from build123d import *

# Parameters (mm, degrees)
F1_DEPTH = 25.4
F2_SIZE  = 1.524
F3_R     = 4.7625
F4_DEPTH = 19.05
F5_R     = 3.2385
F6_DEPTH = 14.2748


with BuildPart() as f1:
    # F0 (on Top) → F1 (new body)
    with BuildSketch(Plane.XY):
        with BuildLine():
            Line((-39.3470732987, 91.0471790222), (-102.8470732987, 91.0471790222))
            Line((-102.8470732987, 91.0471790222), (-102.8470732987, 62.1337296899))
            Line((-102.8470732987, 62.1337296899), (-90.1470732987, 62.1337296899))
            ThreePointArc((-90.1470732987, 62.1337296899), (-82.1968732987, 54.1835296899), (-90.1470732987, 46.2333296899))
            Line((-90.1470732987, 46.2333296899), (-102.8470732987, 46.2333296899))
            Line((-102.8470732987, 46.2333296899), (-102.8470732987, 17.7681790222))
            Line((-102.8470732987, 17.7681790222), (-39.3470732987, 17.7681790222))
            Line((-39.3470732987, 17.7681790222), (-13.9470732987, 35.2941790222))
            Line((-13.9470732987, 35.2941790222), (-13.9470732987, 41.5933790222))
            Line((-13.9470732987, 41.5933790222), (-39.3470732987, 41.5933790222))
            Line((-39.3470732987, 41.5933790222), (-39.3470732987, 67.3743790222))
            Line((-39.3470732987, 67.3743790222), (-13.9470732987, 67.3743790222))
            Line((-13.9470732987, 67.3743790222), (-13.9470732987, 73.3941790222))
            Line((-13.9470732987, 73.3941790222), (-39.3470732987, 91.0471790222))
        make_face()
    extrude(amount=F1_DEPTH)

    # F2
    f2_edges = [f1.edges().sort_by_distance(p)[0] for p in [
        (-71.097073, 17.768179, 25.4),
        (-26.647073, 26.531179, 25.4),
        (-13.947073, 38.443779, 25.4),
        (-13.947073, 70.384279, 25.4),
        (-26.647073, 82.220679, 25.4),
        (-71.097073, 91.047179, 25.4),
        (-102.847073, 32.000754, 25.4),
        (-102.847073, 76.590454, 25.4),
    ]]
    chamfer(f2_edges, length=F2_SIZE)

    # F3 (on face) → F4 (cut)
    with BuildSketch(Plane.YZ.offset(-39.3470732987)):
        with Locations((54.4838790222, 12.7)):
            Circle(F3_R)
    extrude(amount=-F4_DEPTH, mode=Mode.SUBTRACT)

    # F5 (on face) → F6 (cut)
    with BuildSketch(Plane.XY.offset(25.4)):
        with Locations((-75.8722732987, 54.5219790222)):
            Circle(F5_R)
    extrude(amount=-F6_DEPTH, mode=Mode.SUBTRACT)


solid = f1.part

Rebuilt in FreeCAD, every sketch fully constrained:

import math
import FreeCAD as App
import Part
import Sketcher

V = App.Vector
Q = App.Units.Quantity


def edges_at(feature, points):
    """Names of the edges that pass closest to the given points."""
    edges = feature.Shape.Edges
    near = lambda p: min(range(len(edges)), key=lambda i: edges[i].distToShape(Part.Vertex(*p))[0])
    return sorted({f"Edge{near(p) + 1}" for p in points})

doc = App.newDocument("Part")
body = doc.addObject("PartDesign::Body", "Body")

sketch1 = body.newObject("Sketcher::SketchObject", "Sketch")
sketch1.AttachmentSupport = (doc.getObject("XY_Plane"), [""])
sketch1.MapMode = "FlatFace"
sketch1.addGeometry(Part.LineSegment(V(-39.347073, 91.047179, 0), V(-102.847073, 91.047179, 0)), False)
sketch1.addGeometry(Part.LineSegment(V(-102.847073, 91.047179, 0), V(-102.847073, 62.13373, 0)), False)
sketch1.addGeometry(Part.LineSegment(V(-102.847073, 62.13373, 0), V(-90.147073, 62.13373, 0)), False)
sketch1.addGeometry(Part.ArcOfCircle(Part.Circle(V(-90.147073, 54.18353, 0), V(0, 0, 1), 7.9502), math.radians(-90), math.radians(90)), False)
sketch1.addGeometry(Part.LineSegment(V(-90.147073, 46.23333, 0), V(-102.847073, 46.23333, 0)), False)
sketch1.addGeometry(Part.LineSegment(V(-102.847073, 46.23333, 0), V(-102.847073, 17.768179, 0)), False)
sketch1.addGeometry(Part.LineSegment(V(-102.847073, 17.768179, 0), V(-39.347073, 17.768179, 0)), False)
sketch1.addGeometry(Part.LineSegment(V(-39.347073, 17.768179, 0), V(-13.947073, 35.294179, 0)), False)
sketch1.addGeometry(Part.LineSegment(V(-13.947073, 35.294179, 0), V(-13.947073, 41.593379, 0)), False)
sketch1.addGeometry(Part.LineSegment(V(-13.947073, 41.593379, 0), V(-39.347073, 41.593379, 0)), False)
sketch1.addGeometry(Part.LineSegment(V(-39.347073, 41.593379, 0), V(-39.347073, 67.374379, 0)), False)
sketch1.addGeometry(Part.LineSegment(V(-39.347073, 67.374379, 0), V(-13.947073, 67.374379, 0)), False)
sketch1.addGeometry(Part.LineSegment(V(-13.947073, 67.374379, 0), V(-13.947073, 73.394179, 0)), False)
sketch1.addGeometry(Part.LineSegment(V(-13.947073, 73.394179, 0), V(-39.347073, 91.047179, 0)), False)
sketch1.addConstraint(Sketcher.Constraint("Coincident", 0, 2, 1, 1))
sketch1.addConstraint(Sketcher.Constraint("Coincident", 1, 2, 2, 1))
sketch1.addConstraint(Sketcher.Constraint("Tangent", 2, 2, 3, 2))
sketch1.addConstraint(Sketcher.Constraint("Tangent", 3, 1, 4, 1))
sketch1.addConstraint(Sketcher.Constraint("Coincident", 4, 2, 5, 1))
sketch1.addConstraint(Sketcher.Constraint("Coincident", 5, 2, 6, 1))
sketch1.addConstraint(Sketcher.Constraint("Coincident", 6, 2, 7, 1))
sketch1.addConstraint(Sketcher.Constraint("Coincident", 7, 2, 8, 1))
sketch1.addConstraint(Sketcher.Constraint("Coincident", 8, 2, 9, 1))
sketch1.addConstraint(Sketcher.Constraint("Coincident", 9, 2, 10, 1))
sketch1.addConstraint(Sketcher.Constraint("Coincident", 10, 2, 11, 1))
sketch1.addConstraint(Sketcher.Constraint("Coincident", 11, 2, 12, 1))
sketch1.addConstraint(Sketcher.Constraint("Coincident", 12, 2, 13, 1))
sketch1.addConstraint(Sketcher.Constraint("Coincident", 13, 2, 0, 1))
sketch1.addConstraint(Sketcher.Constraint("Horizontal", 0))
sketch1.addConstraint(Sketcher.Constraint("Vertical", 1))
sketch1.addConstraint(Sketcher.Constraint("Horizontal", 2))
sketch1.addConstraint(Sketcher.Constraint("Horizontal", 4))
sketch1.addConstraint(Sketcher.Constraint("Vertical", 5))
sketch1.addConstraint(Sketcher.Constraint("Horizontal", 6))
sketch1.addConstraint(Sketcher.Constraint("Vertical", 8))
sketch1.addConstraint(Sketcher.Constraint("Horizontal", 9))
sketch1.addConstraint(Sketcher.Constraint("Vertical", 10))
sketch1.addConstraint(Sketcher.Constraint("Horizontal", 11))
sketch1.addConstraint(Sketcher.Constraint("Vertical", 12))
sketch1.addConstraint(Sketcher.Constraint("Vertical", 1, 2, 4, 2))
sketch1.addConstraint(Sketcher.Constraint("Vertical", 6, 2, 9, 2))
sketch1.addConstraint(Sketcher.Constraint("Vertical", 8, 2, 11, 2))
sketch1.addConstraint(Sketcher.Constraint("Vertical", 10, 2, 13, 2))
sketch1.addConstraint(Sketcher.Constraint("DistanceX", 9, 2, 9, 1, Q("1 in")))
sketch1.addConstraint(Sketcher.Constraint("DistanceX", 0, 2, 0, 1, Q("2.5 in")))
sketch1.addConstraint(Sketcher.Constraint("DistanceX", 2, 1, 2, 2, Q("0.5 in")))
sketch1.addConstraint(Sketcher.Constraint("Radius", 3, Q("0.313 in")))
sketch1.addConstraint(Sketcher.Constraint("DistanceY", 7, 2, 12, 2, Q("1.5 in")))
sketch1.addConstraint(Sketcher.Constraint("DistanceY", 8, 1, 8, 2, Q("0.248 in")))
sketch1.addConstraint(Sketcher.Constraint("DistanceY", 10, 1, 10, 2, Q("1.015 in")))
sketch1.addConstraint(Sketcher.Constraint("DistanceY", 6, 2, 7, 2, Q("0.69 in")))
sketch1.addConstraint(Sketcher.Constraint("DistanceY", 10, 2, 13, 2, Q("0.932 in")))
sketch1.addConstraint(Sketcher.Constraint("DistanceY", 1, 2, 1, 1, 28.913449))
sketch1.addConstraint(Sketcher.Constraint("DistanceY", -1, 1, 3, 3, 54.18353))
sketch1.addConstraint(Sketcher.Constraint("DistanceX", 3, 3, -1, 1, 90.147073))
pad1 = body.newObject("PartDesign::Pad", "Pad")
pad1.Profile = sketch1
pad1.Length = Q("1 in")
doc.recompute()

chamfer = body.newObject("PartDesign::Chamfer", "Chamfer")
chamfer.Base = (pad1, edges_at(pad1, [
    (-71.097, 17.768, 25.4),
    (-26.647, 26.531, 25.4),
    (-13.947, 38.444, 25.4),
    (-13.947, 70.384, 25.4),
    (-26.647, 82.221, 25.4),
    (-71.097, 91.047, 25.4),
    (-102.847, 32.001, 25.4),
    (-102.847, 76.59, 25.4),
]))
chamfer.Size = Q("0.06 in")

sketch2 = body.newObject("Sketcher::SketchObject", "Sketch001")
sketch2.AttachmentSupport = (doc.getObject("YZ_Plane"), [""])
sketch2.MapMode = "FlatFace"
sketch2.AttachmentOffset = App.Placement(V(0, 0, -39.347073), App.Rotation())
sketch2.addGeometry(Part.Circle(V(54.483879, 12.7, 0), V(0, 0, 1), 4.7625), False)
sketch2.addConstraint(Sketcher.Constraint("Diameter", 0, Q("0.375 in")))
sketch2.addConstraint(Sketcher.Constraint("DistanceY", -1, 1, 0, 3, Q("0.5 in")))
sketch2.addConstraint(Sketcher.Constraint("DistanceX", -1, 1, 0, 3, 54.483879))
pocket1 = body.newObject("PartDesign::Pocket", "Pocket")
pocket1.Profile = sketch2
pocket1.Length = Q("0.75 in")

sketch3 = body.newObject("Sketcher::SketchObject", "Sketch002")
sketch3.AttachmentSupport = (doc.getObject("XY_Plane"), [""])
sketch3.MapMode = "FlatFace"
sketch3.AttachmentOffset = App.Placement(V(0, 0, 1 * 25.4), App.Rotation())
sketch3.addGeometry(Part.Circle(V(-75.872273, 54.521979, 0), V(0, 0, 1), 3.2385), False)
sketch3.addConstraint(Sketcher.Constraint("Diameter", 0, Q("0.255 in")))
sketch3.addConstraint(Sketcher.Constraint("DistanceY", -1, 1, 0, 3, 54.521979))
sketch3.addConstraint(Sketcher.Constraint("DistanceX", 0, 3, -1, 1, 75.872273))
pocket2 = body.newObject("PartDesign::Pocket", "Pocket001")
pocket2.Profile = sketch3
pocket2.Length = Q("0.562 in")

doc.recompute()
